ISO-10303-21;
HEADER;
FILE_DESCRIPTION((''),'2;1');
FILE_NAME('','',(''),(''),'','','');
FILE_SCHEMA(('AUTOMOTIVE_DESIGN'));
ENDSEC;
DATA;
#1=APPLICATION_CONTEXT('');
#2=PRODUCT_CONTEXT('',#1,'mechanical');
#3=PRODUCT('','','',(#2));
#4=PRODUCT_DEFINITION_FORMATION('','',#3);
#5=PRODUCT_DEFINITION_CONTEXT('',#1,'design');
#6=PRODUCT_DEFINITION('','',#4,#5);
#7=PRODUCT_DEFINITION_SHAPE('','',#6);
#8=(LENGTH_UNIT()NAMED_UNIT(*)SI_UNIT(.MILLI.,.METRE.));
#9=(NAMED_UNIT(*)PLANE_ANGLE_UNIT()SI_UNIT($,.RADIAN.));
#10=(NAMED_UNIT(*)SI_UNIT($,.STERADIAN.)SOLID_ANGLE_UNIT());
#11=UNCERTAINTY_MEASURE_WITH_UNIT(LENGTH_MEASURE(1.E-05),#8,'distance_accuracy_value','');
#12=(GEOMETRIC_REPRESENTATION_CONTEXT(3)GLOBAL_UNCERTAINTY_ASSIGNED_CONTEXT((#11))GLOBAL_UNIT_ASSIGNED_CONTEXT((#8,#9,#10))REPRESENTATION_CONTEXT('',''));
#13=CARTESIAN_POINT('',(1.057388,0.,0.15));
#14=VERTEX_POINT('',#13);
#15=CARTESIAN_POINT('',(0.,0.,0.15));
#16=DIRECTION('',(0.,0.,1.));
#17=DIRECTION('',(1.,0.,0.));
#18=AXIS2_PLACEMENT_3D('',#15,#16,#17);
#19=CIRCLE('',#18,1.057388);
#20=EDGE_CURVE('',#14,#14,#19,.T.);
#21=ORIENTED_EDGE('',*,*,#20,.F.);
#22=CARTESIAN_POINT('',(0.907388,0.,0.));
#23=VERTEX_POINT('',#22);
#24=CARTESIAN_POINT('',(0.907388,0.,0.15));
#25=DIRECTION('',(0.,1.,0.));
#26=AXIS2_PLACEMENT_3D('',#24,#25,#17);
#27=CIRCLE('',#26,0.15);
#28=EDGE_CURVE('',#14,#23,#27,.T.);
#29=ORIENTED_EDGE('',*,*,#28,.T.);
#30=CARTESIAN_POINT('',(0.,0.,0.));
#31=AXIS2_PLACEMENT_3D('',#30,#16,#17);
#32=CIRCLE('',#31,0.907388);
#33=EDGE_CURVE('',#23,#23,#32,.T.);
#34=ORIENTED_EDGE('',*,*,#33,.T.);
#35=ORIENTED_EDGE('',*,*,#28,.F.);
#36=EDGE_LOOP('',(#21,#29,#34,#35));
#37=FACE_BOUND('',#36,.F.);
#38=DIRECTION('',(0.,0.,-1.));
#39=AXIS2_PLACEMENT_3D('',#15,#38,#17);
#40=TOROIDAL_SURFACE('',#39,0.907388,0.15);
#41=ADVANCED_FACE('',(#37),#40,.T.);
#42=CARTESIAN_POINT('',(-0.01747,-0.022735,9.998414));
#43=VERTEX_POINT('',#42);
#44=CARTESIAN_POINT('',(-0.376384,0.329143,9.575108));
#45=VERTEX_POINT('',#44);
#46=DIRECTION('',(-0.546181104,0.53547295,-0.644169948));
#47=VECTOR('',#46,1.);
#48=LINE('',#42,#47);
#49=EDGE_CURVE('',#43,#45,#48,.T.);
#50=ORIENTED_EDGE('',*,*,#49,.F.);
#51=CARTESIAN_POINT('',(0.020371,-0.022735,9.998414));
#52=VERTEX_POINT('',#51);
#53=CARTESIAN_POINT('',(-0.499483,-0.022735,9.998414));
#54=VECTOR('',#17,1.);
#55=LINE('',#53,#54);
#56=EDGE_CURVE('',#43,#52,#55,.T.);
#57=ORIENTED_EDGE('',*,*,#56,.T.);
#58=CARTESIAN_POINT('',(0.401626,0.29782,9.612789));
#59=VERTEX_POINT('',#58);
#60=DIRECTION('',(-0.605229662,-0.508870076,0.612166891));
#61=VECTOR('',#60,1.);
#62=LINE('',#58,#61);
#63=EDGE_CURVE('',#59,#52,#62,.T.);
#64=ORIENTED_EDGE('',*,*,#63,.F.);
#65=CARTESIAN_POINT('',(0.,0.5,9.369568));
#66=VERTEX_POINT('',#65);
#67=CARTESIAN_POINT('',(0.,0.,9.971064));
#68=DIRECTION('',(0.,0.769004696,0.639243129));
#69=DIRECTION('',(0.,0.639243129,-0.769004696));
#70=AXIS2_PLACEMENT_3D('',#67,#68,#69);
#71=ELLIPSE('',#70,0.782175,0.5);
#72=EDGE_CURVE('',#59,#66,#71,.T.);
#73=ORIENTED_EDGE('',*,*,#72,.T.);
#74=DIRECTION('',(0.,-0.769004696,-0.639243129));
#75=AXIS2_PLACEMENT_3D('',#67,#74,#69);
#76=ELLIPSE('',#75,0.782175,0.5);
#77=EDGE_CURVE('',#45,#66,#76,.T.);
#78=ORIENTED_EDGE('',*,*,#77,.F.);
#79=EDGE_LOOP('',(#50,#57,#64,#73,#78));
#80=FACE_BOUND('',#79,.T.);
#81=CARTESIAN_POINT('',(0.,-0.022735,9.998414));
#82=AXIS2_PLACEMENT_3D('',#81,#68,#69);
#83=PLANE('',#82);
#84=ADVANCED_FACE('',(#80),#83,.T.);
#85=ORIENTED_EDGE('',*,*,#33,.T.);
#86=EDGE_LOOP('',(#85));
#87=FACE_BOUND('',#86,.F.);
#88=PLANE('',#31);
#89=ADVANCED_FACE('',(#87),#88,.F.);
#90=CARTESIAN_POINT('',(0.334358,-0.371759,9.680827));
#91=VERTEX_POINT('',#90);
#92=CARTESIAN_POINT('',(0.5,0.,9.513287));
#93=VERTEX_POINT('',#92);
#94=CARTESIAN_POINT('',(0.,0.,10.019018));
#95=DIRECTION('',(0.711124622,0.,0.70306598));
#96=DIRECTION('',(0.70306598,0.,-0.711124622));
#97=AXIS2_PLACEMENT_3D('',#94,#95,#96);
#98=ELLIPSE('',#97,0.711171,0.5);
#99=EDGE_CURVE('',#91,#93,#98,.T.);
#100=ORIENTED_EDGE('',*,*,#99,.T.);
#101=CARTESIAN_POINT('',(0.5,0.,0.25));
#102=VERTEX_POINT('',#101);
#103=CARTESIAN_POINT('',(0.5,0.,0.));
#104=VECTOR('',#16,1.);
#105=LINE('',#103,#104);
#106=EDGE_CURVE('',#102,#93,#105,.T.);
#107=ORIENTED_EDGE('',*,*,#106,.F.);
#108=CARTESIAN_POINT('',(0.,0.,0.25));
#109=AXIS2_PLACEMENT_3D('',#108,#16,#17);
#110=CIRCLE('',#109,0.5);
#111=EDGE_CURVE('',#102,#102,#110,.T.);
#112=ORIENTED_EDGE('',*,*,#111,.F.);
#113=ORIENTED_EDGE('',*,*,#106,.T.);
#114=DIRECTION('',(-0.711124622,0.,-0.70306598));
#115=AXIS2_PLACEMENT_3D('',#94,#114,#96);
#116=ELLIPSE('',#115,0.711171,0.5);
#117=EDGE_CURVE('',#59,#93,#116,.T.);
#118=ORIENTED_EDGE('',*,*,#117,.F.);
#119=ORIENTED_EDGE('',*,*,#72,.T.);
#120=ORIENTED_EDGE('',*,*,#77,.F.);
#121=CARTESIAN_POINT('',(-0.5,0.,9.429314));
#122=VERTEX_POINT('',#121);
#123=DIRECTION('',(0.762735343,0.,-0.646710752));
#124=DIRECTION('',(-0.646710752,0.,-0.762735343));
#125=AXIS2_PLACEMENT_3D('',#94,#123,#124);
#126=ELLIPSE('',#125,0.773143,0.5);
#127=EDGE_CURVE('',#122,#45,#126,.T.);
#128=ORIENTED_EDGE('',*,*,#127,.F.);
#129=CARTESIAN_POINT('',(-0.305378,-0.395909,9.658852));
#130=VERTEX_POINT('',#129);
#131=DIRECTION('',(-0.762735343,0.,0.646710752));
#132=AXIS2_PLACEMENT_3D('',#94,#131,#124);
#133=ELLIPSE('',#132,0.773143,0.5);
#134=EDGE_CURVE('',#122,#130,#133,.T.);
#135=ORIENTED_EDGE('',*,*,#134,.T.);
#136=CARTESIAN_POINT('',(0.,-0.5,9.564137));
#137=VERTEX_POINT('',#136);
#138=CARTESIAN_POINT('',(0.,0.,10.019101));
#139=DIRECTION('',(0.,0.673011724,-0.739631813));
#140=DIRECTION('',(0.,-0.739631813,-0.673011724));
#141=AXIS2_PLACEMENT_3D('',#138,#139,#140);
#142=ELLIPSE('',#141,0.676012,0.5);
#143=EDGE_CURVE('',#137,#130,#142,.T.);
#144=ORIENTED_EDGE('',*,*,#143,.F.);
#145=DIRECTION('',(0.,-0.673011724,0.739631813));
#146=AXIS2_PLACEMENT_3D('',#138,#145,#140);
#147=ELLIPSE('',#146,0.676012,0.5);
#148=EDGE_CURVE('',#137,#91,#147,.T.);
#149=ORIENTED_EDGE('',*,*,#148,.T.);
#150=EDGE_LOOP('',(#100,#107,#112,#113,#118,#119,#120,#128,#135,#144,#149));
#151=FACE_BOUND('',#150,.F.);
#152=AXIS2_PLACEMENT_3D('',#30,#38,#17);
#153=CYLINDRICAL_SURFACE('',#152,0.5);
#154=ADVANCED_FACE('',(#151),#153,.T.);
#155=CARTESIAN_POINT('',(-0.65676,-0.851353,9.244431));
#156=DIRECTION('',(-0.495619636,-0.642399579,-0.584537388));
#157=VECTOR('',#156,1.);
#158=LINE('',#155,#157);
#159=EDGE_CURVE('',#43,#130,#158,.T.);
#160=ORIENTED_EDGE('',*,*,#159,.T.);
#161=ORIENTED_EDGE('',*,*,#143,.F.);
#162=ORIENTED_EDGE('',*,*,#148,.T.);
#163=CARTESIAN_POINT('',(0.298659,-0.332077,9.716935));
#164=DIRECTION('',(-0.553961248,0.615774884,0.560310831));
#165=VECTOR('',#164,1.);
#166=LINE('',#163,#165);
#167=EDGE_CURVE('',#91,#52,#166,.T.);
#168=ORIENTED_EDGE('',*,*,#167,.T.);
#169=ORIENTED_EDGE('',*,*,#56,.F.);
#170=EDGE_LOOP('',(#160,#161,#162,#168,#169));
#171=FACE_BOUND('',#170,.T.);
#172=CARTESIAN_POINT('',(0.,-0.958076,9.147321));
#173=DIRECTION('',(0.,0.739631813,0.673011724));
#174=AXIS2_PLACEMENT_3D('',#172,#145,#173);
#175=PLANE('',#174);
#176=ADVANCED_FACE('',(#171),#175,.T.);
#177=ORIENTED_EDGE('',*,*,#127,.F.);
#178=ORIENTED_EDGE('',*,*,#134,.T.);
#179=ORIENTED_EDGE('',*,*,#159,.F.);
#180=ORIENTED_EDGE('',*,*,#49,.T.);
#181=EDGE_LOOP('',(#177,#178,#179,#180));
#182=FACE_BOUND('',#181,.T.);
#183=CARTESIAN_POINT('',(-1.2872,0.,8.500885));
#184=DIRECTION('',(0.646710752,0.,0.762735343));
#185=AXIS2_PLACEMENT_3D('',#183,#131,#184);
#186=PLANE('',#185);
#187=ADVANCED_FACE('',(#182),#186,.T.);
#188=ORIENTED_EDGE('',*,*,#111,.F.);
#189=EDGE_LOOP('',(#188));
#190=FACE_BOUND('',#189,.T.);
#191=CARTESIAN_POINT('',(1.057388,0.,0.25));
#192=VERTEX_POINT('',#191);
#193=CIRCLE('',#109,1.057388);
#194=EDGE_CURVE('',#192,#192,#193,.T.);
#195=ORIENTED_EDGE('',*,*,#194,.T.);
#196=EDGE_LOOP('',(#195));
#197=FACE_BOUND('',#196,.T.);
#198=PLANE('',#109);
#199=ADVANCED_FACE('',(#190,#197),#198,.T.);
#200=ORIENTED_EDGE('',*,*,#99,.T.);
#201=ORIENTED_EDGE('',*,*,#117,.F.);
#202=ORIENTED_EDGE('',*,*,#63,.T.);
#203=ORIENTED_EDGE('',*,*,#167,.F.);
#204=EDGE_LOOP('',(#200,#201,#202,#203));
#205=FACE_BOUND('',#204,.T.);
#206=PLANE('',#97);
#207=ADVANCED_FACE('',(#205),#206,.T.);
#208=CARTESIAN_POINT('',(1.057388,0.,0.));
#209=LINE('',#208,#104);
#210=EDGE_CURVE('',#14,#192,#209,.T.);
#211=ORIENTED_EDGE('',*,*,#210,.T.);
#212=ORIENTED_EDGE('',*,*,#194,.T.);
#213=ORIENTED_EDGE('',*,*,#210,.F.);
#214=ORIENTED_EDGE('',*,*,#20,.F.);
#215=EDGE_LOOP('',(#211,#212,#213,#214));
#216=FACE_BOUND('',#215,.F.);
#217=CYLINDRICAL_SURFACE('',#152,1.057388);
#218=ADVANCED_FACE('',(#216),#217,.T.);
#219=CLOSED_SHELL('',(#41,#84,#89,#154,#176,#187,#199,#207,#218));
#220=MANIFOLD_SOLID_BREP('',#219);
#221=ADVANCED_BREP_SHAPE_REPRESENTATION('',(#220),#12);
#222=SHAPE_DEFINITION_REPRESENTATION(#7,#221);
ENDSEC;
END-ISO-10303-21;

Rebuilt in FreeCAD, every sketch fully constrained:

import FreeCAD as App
import Part
import Sketcher
from FreeCAD import Vector


def edges_at(feature, points):
    """Names of the edges that pass closest to the given points."""
    edges = feature.Shape.Edges
    near = lambda p: min(range(len(edges)), key=lambda i: edges[i].distToShape(Part.Vertex(*p))[0])
    return sorted({f"Edge{near(p) + 1}" for p in points})

doc = App.newDocument("Part")
body = doc.addObject("PartDesign::Body", "Body")

# Sketch on XY plane
sketch1 = doc.addObject("Sketcher::SketchObject", "Sketch")
body.addObject(sketch1)
sketch1.AttachmentSupport = (doc.XY_Plane, [""])
sketch1.MapMode = "FlatFace"
sketch1.addGeometry(Part.Circle(Vector(0, 0, 0), Vector(0, 0, 1), 0.5), False)
sketch1.addConstraint([
    Sketcher.Constraint("Coincident", 0, 3, -1, 1),
    Sketcher.Constraint("Diameter", 0, 1.0),
])
pad1 = doc.addObject("PartDesign::Pad", "Pad")
body.addObject(pad1)
pad1.Profile = sketch1
pad1.Length = 10

# Sketch on XY plane
sketch2 = doc.addObject("Sketcher::SketchObject", "Sketch001")
body.addObject(sketch2)
sketch2.AttachmentSupport = (doc.XY_Plane, [""])
sketch2.MapMode = "FlatFace"
sketch2.addGeometry([
    Part.Circle(Vector(0, 0, 0), Vector(0, 0, 1), 1.1),
    Part.Circle(Vector(0, 0, 0), Vector(0, 0, 1), 0.5),
], False)
sketch2.addConstraint([
    Sketcher.Constraint("Coincident", 0, 3, -1, 1),
    Sketcher.Constraint("Coincident", 1, 3, -1, 1),
    Sketcher.Constraint("Diameter", 1, 1.0),
    Sketcher.Constraint("Diameter", 0, 2.114776),
])
pad2 = doc.addObject("PartDesign::Pad", "Pad001")
body.addObject(pad2)
pad2.Profile = sketch2
pad2.Length = 0.25
doc.recompute()

fillet = doc.addObject("PartDesign::Fillet", "Fillet")
body.addObject(fillet)
fillet.Base = (pad2, edges_at(pad2, [(-1.057, 0, 0)]))
fillet.Radius = 0.15

# Sketch on YZ plane
sketch3 = doc.addObject("Sketcher::SketchObject", "Sketch002")
body.addObject(sketch3)
sketch3.AttachmentSupport = (doc.YZ_Plane, [""])
sketch3.MapMode = "FlatFace"
sketch3.addGeometry([
    Part.LineSegment(Vector(-1, 9.1, 0), Vector(0, 10, 0)),  # 0
    Part.LineSegment(Vector(0, 10, 0), Vector(0.7, 9.1, 0)),  # 1
    Part.LineSegment(Vector(0.7, 9.1, 0), Vector(0.7, 10.4, 0)),  # 2
    Part.LineSegment(Vector(0.7, 10.4, 0), Vector(-0.9, 10.4, 0)),  # 3
    Part.LineSegment(Vector(-0.9, 10.4, 0), Vector(-1, 9.1, 0)),  # 4
], False)
sketch3.addConstraint([
    Sketcher.Constraint("Coincident", 0, 2, 1, 1),
    Sketcher.Constraint("Coincident", 1, 2, 2, 1),
    Sketcher.Constraint("Coincident", 2, 2, 3, 1),
    Sketcher.Constraint("Coincident", 3, 2, 4, 1),
    Sketcher.Constraint("Coincident", 4, 2, 0, 1),
    Sketcher.Constraint("Vertical", 2),
    Sketcher.Constraint("DistanceY", 1, 2, 4, 2, 0.007099),
    Sketcher.Constraint("Distance", 3, 1.560438),
    Sketcher.Constraint("DistanceY", 2, 1, 2, 2, 1.212373),
    Sketcher.Constraint("DistanceX", 3, 2, -1, 1, 0.869291),
    Sketcher.Constraint("DistanceY", -1, 1, 4, 2, 9.147321),
    Sketcher.Constraint("DistanceX", 0, 2, 1, 2, 0.713381),
    Sketcher.Constraint("DistanceY", 0, 2, 2, 2, 0.354181),
    Sketcher.Constraint("DistanceY", 0, 2, 3, 2, 0.393721),
    Sketcher.Constraint("DistanceX", 4, 2, 0, 2, 0.935341),
])
pocket1 = doc.addObject("PartDesign::Pocket", "Pocket")
body.addObject(pocket1)
pocket1.Profile = sketch3
pocket1.Type = "ThroughAll"
pocket1.Midplane = True

# Sketch on XZ plane
sketch4 = doc.addObject("Sketcher::SketchObject", "Sketch003")
body.addObject(sketch4)
sketch4.AttachmentSupport = (doc.XZ_Plane, [""])
sketch4.MapMode = "FlatFace"
sketch4.addGeometry([
    Part.LineSegment(Vector(-1.3, 8.5, 0), Vector(0, 10, 0)),  # 0
    Part.LineSegment(Vector(0, 10, 0), Vector(1.3, 8.7, 0)),  # 1
    Part.LineSegment(Vector(1.3, 8.7, 0), Vector(1.1, 10.7, 0)),  # 2
    Part.LineSegment(Vector(1.1, 10.7, 0), Vector(-1.3, 10.7, 0)),  # 3
    Part.LineSegment(Vector(-1.3, 10.7, 0), Vector(-1.3, 8.5, 0)),  # 4
], False)
sketch4.addConstraint([
    Sketcher.Constraint("Coincident", 0, 2, 1, 1),
    Sketcher.Constraint("Coincident", 1, 2, 2, 1),
    Sketcher.Constraint("Coincident", 2, 2, 3, 1),
    Sketcher.Constraint("Coincident", 3, 2, 4, 1),
    Sketcher.Constraint("Coincident", 4, 2, 0, 1),
    Sketcher.Constraint("Horizontal", 3),
    Sketcher.Constraint("Vertical", 4),
    Sketcher.Constraint("PointOnObject", 0, 2, -2),
    Sketcher.Constraint("DistanceX", 3, 2, 3, 1, 2.412601),
    Sketcher.Constraint("DistanceY", 4, 2, 4, 1, 2.240272),
    Sketcher.Constraint("DistanceX", -1, 1, 2, 2, 1.125401),
    Sketcher.Constraint("Distance", 0, 1.99038),
    Sketcher.Constraint("DistanceY", -1, 1, 0, 2, 10.019018),
    Sketcher.Constraint("DistanceY", 4, 2, 1, 2, 0.172328),
    Sketcher.Constraint("Distance", 1, 1.892502),
])
pocket2 = doc.addObject("PartDesign::Pocket", "Pocket001")
body.addObject(pocket2)
pocket2.Profile = sketch4
pocket2.Type = "ThroughAll"
pocket2.Midplane = True

doc.recompute()
